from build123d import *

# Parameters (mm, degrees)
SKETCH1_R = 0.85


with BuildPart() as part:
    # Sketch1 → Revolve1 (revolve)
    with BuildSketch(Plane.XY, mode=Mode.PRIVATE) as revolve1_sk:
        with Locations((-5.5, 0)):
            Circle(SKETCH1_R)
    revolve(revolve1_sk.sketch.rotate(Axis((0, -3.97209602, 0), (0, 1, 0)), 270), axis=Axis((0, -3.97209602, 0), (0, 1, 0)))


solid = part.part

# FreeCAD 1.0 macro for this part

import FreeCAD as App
import Part
import Sketcher

V = App.Vector
Q = App.Units.Quantity

doc = App.newDocument("Part")
params = doc.addObject("Spreadsheet::Sheet", "Params")
for row, (alias, value) in enumerate([
    ("sketch1_diameter", "1.7 mm"),
    ("revolution_angle", "360 deg"),
], start=1):
    params.set(f"A{row}", alias)
    params.set(f"B{row}", "=" + value)
    params.setAlias(f"B{row}", alias)

body = doc.addObject("PartDesign::Body", "Body")

sketch1 = doc.addObject("Sketcher::SketchObject", "Sketch")
body.addObject(sketch1)
sketch1.AttachmentSupport = (doc.XY_Plane, [""])
sketch1.MapMode = "FlatFace"
sketch1.addGeometry(Part.Circle(V(-5.5, 0, 0), V(0, 0, 1), 0.85), False)
sketch1.addConstraint(Sketcher.Constraint("PointOnObject", 0, 3, -1))
sketch1.addConstraint(Sketcher.Constraint("Diameter", 0, Q("1.7 mm")))
sketch1.addConstraint(Sketcher.Constraint("DistanceX", 0, 3, -1, 1, Q("5.5 mm")))
sketch1.setExpression("Constraints[1]", "Params.sketch1_diameter")
revolution = doc.addObject("PartDesign::Revolution", "Revolution")
body.addObject(revolution)
revolution.Profile = sketch1
revolution.ReferenceAxis = (sketch1, ["V_Axis"])
revolution.setExpression("Angle", "Params.revolution_angle")

doc.recompute()
